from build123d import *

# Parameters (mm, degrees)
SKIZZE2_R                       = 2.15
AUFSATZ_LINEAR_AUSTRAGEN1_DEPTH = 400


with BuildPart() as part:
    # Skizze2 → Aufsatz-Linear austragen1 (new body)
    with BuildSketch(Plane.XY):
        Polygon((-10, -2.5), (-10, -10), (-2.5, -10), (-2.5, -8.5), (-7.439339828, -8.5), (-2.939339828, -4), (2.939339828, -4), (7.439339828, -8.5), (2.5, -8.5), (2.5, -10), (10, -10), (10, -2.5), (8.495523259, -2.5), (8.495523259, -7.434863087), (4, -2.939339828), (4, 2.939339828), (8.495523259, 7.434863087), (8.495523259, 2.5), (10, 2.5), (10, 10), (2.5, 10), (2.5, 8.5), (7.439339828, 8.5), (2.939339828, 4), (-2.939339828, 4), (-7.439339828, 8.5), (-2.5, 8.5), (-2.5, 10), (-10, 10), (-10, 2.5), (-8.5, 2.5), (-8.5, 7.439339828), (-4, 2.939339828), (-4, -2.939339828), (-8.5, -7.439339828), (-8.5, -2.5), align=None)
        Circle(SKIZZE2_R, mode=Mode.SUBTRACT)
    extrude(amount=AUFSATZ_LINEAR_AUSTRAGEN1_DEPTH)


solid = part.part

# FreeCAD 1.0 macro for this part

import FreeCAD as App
import Part
import Sketcher
from FreeCAD import Vector
Q = App.Units.Quantity

doc = App.newDocument("Part")
body = doc.addObject("PartDesign::Body", "Body")

sketch1 = body.newObject("Sketcher::SketchObject", "Sketch")
sketch1.AttachmentSupport = (doc.getObject("XY_Plane"), [""])
sketch1.MapMode = "FlatFace"
sketch1.addGeometry(Part.LineSegment(Vector(-10, -2.5, 0), Vector(-10, -10, 0)), False)
sketch1.addGeometry(Part.LineSegment(Vector(-10, -10, 0), Vector(-2.5, -10, 0)), False)
sketch1.addGeometry(Part.LineSegment(Vector(-2.5, -10, 0), Vector(-2.5, -8.5, 0)), False)
sketch1.addGeometry(Part.LineSegment(Vector(-2.5, -8.5, 0), Vector(-7.4, -8.5, 0)), False)
sketch1.addGeometry(Part.LineSegment(Vector(-7.4, -8.5, 0), Vector(-2.9, -4, 0)), False)
sketch1.addGeometry(Part.LineSegment(Vector(-2.9, -4, 0), Vector(2.9, -4, 0)), False)
sketch1.addGeometry(Part.LineSegment(Vector(2.9, -4, 0), Vector(7.4, -8.5, 0)), False)
sketch1.addGeometry(Part.LineSegment(Vector(7.4, -8.5, 0), Vector(2.5, -8.5, 0)), False)
sketch1.addGeometry(Part.LineSegment(Vector(2.5, -8.5, 0), Vector(2.5, -10, 0)), False)
sketch1.addGeometry(Part.LineSegment(Vector(2.5, -10, 0), Vector(10, -10, 0)), False)
sketch1.addGeometry(Part.LineSegment(Vector(10, -10, 0), Vector(10, -2.5, 0)), False)
sketch1.addGeometry(Part.LineSegment(Vector(10, -2.5, 0), Vector(8.5, -2.5, 0)), False)
sketch1.addGeometry(Part.LineSegment(Vector(8.5, -2.5, 0), Vector(8.5, -7.4, 0)), False)
sketch1.addGeometry(Part.LineSegment(Vector(8.5, -7.4, 0), Vector(4, -2.9, 0)), False)
sketch1.addGeometry(Part.LineSegment(Vector(4, -2.9, 0), Vector(4, 2.9, 0)), False)
sketch1.addGeometry(Part.LineSegment(Vector(4, 2.9, 0), Vector(8.5, 7.4, 0)), False)
sketch1.addGeometry(Part.LineSegment(Vector(8.5, 7.4, 0), Vector(8.5, 2.5, 0)), False)
sketch1.addGeometry(Part.LineSegment(Vector(8.5, 2.5, 0), Vector(10, 2.5, 0)), False)
sketch1.addGeometry(Part.LineSegment(Vector(10, 2.5, 0), Vector(10, 10, 0)), False)
sketch1.addGeometry(Part.LineSegment(Vector(10, 10, 0), Vector(2.5, 10, 0)), False)
sketch1.addGeometry(Part.LineSegment(Vector(2.5, 10, 0), Vector(2.5, 8.5, 0)), False)
sketch1.addGeometry(Part.LineSegment(Vector(2.5, 8.5, 0), Vector(7.4, 8.5, 0)), False)
sketch1.addGeometry(Part.LineSegment(Vector(7.4, 8.5, 0), Vector(2.9, 4, 0)), False)
sketch1.addGeometry(Part.LineSegment(Vector(2.9, 4, 0), Vector(-2.9, 4, 0)), False)
sketch1.addGeometry(Part.LineSegment(Vector(-2.9, 4, 0), Vector(-7.4, 8.5, 0)), False)
sketch1.addGeometry(Part.LineSegment(Vector(-7.4, 8.5, 0), Vector(-2.5, 8.5, 0)), False)
sketch1.addGeometry(Part.LineSegment(Vector(-2.5, 8.5, 0), Vector(-2.5, 10, 0)), False)
sketch1.addGeometry(Part.LineSegment(Vector(-2.5, 10, 0), Vector(-10, 10, 0)), False)
sketch1.addGeometry(Part.LineSegment(Vector(-10, 10, 0), Vector(-10, 2.5, 0)), False)
sketch1.addGeometry(Part.LineSegment(Vector(-10, 2.5, 0), Vector(-8.5, 2.5, 0)), False)
sketch1.addGeometry(Part.LineSegment(Vector(-8.5, 2.5, 0), Vector(-8.5, 7.4, 0)), False)
sketch1.addGeometry(Part.LineSegment(Vector(-8.5, 7.4, 0), Vector(-4, 2.9, 0)), False)
sketch1.addGeometry(Part.LineSegment(Vector(-4, 2.9, 0), Vector(-4, -2.9, 0)), False)
sketch1.addGeometry(Part.LineSegment(Vector(-4, -2.9, 0), Vector(-8.5, -7.4, 0)), False)
sketch1.addGeometry(Part.LineSegment(Vector(-8.5, -7.4, 0), Vector(-8.5, -2.5, 0)), False)
sketch1.addGeometry(Part.LineSegment(Vector(-8.5, -2.5, 0), Vector(-10, -2.5, 0)), False)
sketch1.addGeometry(Part.Circle(Vector(0, 0, 0), Vector(0, 0, 1), 2.1), False)
sketch1.addConstraint(Sketcher.Constraint("Coincident", 0, 2, 1, 1))
sketch1.addConstraint(Sketcher.Constraint("Coincident", 1, 2, 2, 1))
sketch1.addConstraint(Sketcher.Constraint("Coincident", 2, 2, 3, 1))
sketch1.addConstraint(Sketcher.Constraint("Coincident", 3, 2, 4, 1))
sketch1.addConstraint(Sketcher.Constraint("Coincident", 4, 2, 5, 1))
sketch1.addConstraint(Sketcher.Constraint("Coincident", 5, 2, 6, 1))
sketch1.addConstraint(Sketcher.Constraint("Coincident", 6, 2, 7, 1))
sketch1.addConstraint(Sketcher.Constraint("Coincident", 7, 2, 8, 1))
sketch1.addConstraint(Sketcher.Constraint("Coincident", 8, 2, 9, 1))
sketch1.addConstraint(Sketcher.Constraint("Coincident", 9, 2, 10, 1))
sketch1.addConstraint(Sketcher.Constraint("Coincident", 10, 2, 11, 1))
sketch1.addConstraint(Sketcher.Constraint("Coincident", 11, 2, 12, 1))
sketch1.addConstraint(Sketcher.Constraint("Coincident", 12, 2, 13, 1))
sketch1.addConstraint(Sketcher.Constraint("Coincident", 13, 2, 14, 1))
sketch1.addConstraint(Sketcher.Constraint("Coincident", 14, 2, 15, 1))
sketch1.addConstraint(Sketcher.Constraint("Coincident", 15, 2, 16, 1))
sketch1.addConstraint(Sketcher.Constraint("Coincident", 16, 2, 17, 1))
sketch1.addConstraint(Sketcher.Constraint("Coincident", 17, 2, 18, 1))
sketch1.addConstraint(Sketcher.Constraint("Coincident", 18, 2, 19, 1))
sketch1.addConstraint(Sketcher.Constraint("Coincident", 19, 2, 20, 1))
sketch1.addConstraint(Sketcher.Constraint("Coincident", 20, 2, 21, 1))
sketch1.addConstraint(Sketcher.Constraint("Coincident", 21, 2, 22, 1))
sketch1.addConstraint(Sketcher.Constraint("Coincident", 22, 2, 23, 1))
sketch1.addConstraint(Sketcher.Constraint("Coincident", 23, 2, 24, 1))
sketch1.addConstraint(Sketcher.Constraint("Coincident", 24, 2, 25, 1))
sketch1.addConstraint(Sketcher.Constraint("Coincident", 25, 2, 26, 1))
sketch1.addConstraint(Sketcher.Constraint("Coincident", 26, 2, 27, 1))
sketch1.addConstraint(Sketcher.Constraint("Coincident", 27, 2, 28, 1))
sketch1.addConstraint(Sketcher.Constraint("Coincident", 28, 2, 29, 1))
sketch1.addConstraint(Sketcher.Constraint("Coincident", 29, 2, 30, 1))
sketch1.addConstraint(Sketcher.Constraint("Coincident", 30, 2, 31, 1))
sketch1.addConstraint(Sketcher.Constraint("Coincident", 31, 2, 32, 1))
sketch1.addConstraint(Sketcher.Constraint("Coincident", 32, 2, 33, 1))
sketch1.addConstraint(Sketcher.Constraint("Coincident", 33, 2, 34, 1))
sketch1.addConstraint(Sketcher.Constraint("Coincident", 34, 2, 35, 1))
sketch1.addConstraint(Sketcher.Constraint("Coincident", 35, 2, 0, 1))
sketch1.addConstraint(Sketcher.Constraint("Vertical", 0))
sketch1.addConstraint(Sketcher.Constraint("Horizontal", 1))
sketch1.addConstraint(Sketcher.Constraint("Vertical", 2))
sketch1.addConstraint(Sketcher.Constraint("Horizontal", 3))
sketch1.addConstraint(Sketcher.Constraint("Horizontal", 5))
sketch1.addConstraint(Sketcher.Constraint("Horizontal", 7))
sketch1.addConstraint(Sketcher.Constraint("Vertical", 8))
sketch1.addConstraint(Sketcher.Constraint("Horizontal", 9))
sketch1.addConstraint(Sketcher.Constraint("Vertical", 10))
sketch1.addConstraint(Sketcher.Constraint("Horizontal", 11))
sketch1.addConstraint(Sketcher.Constraint("Vertical", 12))
sketch1.addConstraint(Sketcher.Constraint("Vertical", 14))
sketch1.addConstraint(Sketcher.Constraint("Vertical", 16))
sketch1.addConstraint(Sketcher.Constraint("Horizontal", 17))
sketch1.addConstraint(Sketcher.Constraint("Vertical", 18))
sketch1.addConstraint(Sketcher.Constraint("Horizontal", 19))
sketch1.addConstraint(Sketcher.Constraint("Vertical", 20))
sketch1.addConstraint(Sketcher.Constraint("Horizontal", 21))
sketch1.addConstraint(Sketcher.Constraint("Horizontal", 23))
sketch1.addConstraint(Sketcher.Constraint("Horizontal", 25))
sketch1.addConstraint(Sketcher.Constraint("Vertical", 26))
sketch1.addConstraint(Sketcher.Constraint("Horizontal", 27))
sketch1.addConstraint(Sketcher.Constraint("Vertical", 28))
sketch1.addConstraint(Sketcher.Constraint("Horizontal", 29))
sketch1.addConstraint(Sketcher.Constraint("Vertical", 30))
sketch1.addConstraint(Sketcher.Constraint("Vertical", 32))
sketch1.addConstraint(Sketcher.Constraint("Vertical", 34))
sketch1.addConstraint(Sketcher.Constraint("Horizontal", 35))
sketch1.addConstraint(Sketcher.Constraint("Coincident", 36, 3, -1, 1))
sketch1.addConstraint(Sketcher.Constraint("Symmetric", 0, 2, 18, 2, -1, 1))
sketch1.addConstraint(Sketcher.Constraint("Symmetric", 2, 2, 20, 2, -1, 1))
sketch1.addConstraint(Sketcher.Constraint("Symmetric", 4, 2, 22, 2, -1, 1))
sketch1.addConstraint(Sketcher.Constraint("Symmetric", 6, 2, 24, 2, -1, 1))
sketch1.addConstraint(Sketcher.Constraint("Symmetric", 8, 2, 26, 2, -1, 1))
sketch1.addConstraint(Sketcher.Constraint("Symmetric", 10, 2, 28, 2, -1, 1))
sketch1.addConstraint(Sketcher.Constraint("Symmetric", 13, 2, 31, 2, -1, 1))
sketch1.addConstraint(Sketcher.Constraint("Symmetric", 3, 2, 6, 2, -2))
sketch1.addConstraint(Sketcher.Constraint("Symmetric", 1, 2, 8, 2, -2))
sketch1.addConstraint(Sketcher.Constraint("Symmetric", 17, 2, 28, 2, -2))
sketch1.addConstraint(Sketcher.Constraint("Symmetric", 12, 2, 15, 2, -1))
sketch1.addConstraint(Sketcher.Constraint("Symmetric", 30, 2, 33, 2, -1))
sketch1.addConstraint(Sketcher.Constraint("Perpendicular", 4, 6))
sketch1.addConstraint(Sketcher.Constraint("Parallel", 6, 13))
sketch1.addConstraint(Sketcher.Constraint("Perpendicular", 13, 15))
sketch1.addConstraint(Sketcher.Constraint("Parallel", 15, 22))
sketch1.addConstraint(Sketcher.Constraint("Perpendicular", 22, 24))
sketch1.addConstraint(Sketcher.Constraint("Parallel", 24, 31))
sketch1.addConstraint(Sketcher.Constraint("Perpendicular", 31, 33))
sketch1.addConstraint(Sketcher.Constraint("Horizontal", 14, 2, 31, 2))
sketch1.addConstraint(Sketcher.Constraint("Horizontal", 11, 2, 34, 2))
sketch1.addConstraint(Sketcher.Constraint("Equal", 27, 0))
sketch1.addConstraint(Sketcher.Constraint("Equal", 35, 2))
sketch1.addConstraint(Sketcher.Constraint("Equal", 23, 14))
sketch1.addConstraint(Sketcher.Constraint("Equal", 25, 30))
sketch1.addConstraint(Sketcher.Constraint("Equal", 24, 31))
sketch1.addConstraint(Sketcher.Constraint("Diameter", 36, Q("4.3 mm")))
sketch1.addConstraint(Sketcher.Constraint("DistanceX", 1, 1, 1, 2, Q("7.5 mm")))
sketch1.addConstraint(Sketcher.Constraint("DistanceX", 29, 1, 29, 2, Q("1.5 mm")))
sketch1.addConstraint(Sketcher.Constraint("DistanceX", 0, 2, -1, 1, Q("10 mm")))
sketch1.addConstraint(Sketcher.Constraint("DistanceY", 4, 2, -1, 1, Q("4 mm")))
sketch1.addConstraint(Sketcher.Constraint("DistanceX", 3, 2, 3, 1, Q("4.93934 mm")))
sketch1.addConstraint(Sketcher.Constraint("Distance", 13, Q("6.35763 mm")))
pad1 = body.newObject("PartDesign::Pad", "Pad")
pad1.Profile = sketch1
pad1.Length = 400

doc.recompute()
